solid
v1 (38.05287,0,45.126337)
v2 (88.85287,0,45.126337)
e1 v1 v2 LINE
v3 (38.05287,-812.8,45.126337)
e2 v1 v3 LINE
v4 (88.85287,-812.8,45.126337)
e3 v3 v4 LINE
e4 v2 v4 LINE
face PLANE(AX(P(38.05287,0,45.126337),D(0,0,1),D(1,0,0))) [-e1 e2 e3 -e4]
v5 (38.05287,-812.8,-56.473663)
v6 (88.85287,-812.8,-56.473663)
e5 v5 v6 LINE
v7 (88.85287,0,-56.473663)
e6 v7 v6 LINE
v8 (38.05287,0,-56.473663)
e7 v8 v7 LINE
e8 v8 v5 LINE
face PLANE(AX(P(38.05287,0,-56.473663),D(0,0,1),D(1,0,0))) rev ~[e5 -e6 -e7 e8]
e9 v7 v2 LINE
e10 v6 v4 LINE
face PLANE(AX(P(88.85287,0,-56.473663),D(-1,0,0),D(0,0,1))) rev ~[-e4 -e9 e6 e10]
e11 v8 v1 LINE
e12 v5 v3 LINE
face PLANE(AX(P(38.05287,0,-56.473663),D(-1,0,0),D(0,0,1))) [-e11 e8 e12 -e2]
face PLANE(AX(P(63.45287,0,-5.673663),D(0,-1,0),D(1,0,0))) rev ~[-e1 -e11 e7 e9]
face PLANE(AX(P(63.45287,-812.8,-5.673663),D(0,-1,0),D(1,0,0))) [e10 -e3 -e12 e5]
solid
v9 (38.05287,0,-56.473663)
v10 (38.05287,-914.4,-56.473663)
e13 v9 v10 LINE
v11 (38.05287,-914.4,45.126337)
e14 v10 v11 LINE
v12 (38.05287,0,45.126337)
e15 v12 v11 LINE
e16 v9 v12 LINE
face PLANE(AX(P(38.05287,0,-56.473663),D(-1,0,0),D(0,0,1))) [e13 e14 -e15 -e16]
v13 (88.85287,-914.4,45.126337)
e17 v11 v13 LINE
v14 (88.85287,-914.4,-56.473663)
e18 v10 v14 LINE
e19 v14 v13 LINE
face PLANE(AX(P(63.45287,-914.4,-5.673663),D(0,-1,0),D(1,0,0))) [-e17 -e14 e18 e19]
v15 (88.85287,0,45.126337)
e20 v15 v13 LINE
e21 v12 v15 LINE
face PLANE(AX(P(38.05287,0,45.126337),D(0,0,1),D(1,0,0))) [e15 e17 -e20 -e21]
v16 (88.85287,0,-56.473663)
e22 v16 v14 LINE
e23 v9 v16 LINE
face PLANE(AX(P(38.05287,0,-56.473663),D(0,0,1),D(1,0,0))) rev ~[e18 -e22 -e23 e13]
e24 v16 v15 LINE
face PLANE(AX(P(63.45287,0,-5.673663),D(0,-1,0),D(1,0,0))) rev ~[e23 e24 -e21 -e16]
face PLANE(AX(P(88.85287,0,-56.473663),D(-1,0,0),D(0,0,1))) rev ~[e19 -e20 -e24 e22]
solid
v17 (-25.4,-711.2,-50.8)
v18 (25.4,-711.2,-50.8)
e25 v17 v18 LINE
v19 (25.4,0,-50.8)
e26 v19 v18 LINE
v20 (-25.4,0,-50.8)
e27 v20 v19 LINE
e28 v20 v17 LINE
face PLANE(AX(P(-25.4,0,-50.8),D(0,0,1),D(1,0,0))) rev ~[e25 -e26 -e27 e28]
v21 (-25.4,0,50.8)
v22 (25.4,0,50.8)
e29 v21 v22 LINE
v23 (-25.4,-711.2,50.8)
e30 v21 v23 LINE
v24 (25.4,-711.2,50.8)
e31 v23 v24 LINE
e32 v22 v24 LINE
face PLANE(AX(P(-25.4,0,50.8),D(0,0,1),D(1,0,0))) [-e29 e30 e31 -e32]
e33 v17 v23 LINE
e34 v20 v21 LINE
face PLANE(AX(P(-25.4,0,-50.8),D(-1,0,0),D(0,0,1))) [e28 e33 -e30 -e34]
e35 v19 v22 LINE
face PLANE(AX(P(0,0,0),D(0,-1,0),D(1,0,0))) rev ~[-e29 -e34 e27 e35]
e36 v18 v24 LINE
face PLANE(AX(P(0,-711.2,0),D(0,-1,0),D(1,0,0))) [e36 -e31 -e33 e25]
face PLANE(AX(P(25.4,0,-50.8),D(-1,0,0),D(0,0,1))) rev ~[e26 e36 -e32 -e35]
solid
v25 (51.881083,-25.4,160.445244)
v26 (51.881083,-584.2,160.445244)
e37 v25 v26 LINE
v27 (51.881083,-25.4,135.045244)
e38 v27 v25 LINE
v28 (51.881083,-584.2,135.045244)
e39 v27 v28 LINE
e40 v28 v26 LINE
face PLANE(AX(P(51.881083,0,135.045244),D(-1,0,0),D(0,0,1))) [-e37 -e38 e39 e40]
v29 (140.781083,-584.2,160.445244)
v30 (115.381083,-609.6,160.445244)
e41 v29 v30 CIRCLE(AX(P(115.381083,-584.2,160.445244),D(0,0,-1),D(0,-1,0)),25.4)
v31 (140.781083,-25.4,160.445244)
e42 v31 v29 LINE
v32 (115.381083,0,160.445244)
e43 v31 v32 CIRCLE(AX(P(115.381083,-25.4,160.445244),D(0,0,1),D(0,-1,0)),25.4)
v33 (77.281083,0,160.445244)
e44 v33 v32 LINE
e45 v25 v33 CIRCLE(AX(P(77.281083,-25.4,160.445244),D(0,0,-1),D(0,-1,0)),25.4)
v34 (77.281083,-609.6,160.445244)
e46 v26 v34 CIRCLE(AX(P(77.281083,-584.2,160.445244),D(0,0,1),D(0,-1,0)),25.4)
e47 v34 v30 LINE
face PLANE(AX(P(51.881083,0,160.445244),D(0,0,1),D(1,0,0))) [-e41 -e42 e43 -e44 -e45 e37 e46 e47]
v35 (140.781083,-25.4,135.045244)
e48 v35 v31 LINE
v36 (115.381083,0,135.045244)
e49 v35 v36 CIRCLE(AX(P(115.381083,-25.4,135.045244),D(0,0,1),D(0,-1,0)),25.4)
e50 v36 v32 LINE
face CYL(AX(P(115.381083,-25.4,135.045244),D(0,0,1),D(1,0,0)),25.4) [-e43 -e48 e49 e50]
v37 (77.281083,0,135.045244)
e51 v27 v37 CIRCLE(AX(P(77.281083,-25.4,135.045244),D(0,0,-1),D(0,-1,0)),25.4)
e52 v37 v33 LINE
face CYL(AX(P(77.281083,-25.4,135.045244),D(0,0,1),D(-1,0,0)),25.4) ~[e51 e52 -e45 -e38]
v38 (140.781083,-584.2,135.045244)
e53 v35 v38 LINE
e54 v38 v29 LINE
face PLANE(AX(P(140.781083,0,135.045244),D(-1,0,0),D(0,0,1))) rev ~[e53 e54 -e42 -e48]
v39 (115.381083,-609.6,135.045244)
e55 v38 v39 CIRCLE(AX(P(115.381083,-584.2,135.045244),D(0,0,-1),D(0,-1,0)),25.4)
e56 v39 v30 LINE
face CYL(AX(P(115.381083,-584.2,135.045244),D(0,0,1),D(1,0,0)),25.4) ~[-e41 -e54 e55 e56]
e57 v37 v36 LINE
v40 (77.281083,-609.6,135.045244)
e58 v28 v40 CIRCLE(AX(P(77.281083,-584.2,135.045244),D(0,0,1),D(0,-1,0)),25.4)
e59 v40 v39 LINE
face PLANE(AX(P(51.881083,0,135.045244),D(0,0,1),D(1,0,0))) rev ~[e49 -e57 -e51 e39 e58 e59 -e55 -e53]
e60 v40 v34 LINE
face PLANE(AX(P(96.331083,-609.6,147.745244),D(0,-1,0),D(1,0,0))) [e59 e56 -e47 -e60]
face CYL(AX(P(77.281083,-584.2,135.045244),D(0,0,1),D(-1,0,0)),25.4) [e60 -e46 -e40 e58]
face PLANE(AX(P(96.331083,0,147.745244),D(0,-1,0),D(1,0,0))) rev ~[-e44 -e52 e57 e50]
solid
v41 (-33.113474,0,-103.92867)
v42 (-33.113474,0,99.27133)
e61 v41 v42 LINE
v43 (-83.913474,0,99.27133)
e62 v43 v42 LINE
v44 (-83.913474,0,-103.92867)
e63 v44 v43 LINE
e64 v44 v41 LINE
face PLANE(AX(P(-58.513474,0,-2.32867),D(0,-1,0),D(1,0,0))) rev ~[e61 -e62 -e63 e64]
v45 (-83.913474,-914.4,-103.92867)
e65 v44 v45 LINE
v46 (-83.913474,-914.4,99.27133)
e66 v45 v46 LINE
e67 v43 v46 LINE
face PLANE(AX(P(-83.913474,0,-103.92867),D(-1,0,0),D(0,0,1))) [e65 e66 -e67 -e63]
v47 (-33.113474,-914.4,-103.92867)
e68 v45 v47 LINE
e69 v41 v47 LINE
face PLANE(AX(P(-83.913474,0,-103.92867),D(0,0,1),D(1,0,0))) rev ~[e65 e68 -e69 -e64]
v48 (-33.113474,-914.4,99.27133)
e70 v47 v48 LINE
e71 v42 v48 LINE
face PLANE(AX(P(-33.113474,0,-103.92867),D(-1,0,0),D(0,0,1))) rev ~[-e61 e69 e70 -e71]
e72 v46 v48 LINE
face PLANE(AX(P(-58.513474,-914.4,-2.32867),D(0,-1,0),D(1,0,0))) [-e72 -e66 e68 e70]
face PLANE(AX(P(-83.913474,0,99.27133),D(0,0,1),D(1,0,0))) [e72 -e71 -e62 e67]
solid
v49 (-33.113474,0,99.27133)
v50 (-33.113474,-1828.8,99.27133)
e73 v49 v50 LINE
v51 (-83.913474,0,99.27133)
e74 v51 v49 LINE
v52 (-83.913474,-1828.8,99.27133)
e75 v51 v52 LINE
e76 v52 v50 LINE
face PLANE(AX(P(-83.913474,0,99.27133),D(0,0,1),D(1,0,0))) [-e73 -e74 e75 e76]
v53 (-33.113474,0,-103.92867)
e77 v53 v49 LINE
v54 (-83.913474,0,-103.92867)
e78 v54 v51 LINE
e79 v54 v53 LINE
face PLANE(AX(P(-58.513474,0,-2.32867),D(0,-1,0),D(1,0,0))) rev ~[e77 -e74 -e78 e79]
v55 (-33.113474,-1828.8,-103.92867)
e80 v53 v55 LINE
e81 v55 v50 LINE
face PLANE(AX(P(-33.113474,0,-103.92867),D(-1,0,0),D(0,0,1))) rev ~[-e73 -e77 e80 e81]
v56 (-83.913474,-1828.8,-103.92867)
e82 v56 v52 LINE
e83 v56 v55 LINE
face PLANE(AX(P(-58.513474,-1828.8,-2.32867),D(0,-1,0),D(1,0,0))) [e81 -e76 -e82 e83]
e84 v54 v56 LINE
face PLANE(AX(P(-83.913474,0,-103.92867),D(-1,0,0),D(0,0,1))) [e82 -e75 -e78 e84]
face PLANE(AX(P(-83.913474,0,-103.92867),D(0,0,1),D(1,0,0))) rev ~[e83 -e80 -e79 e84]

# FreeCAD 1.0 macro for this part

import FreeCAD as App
import Part
import Sketcher

V = App.Vector
Q = App.Units.Quantity


def edges_at(feature, points):
    """Names of the edges that pass closest to the given points."""
    edges = feature.Shape.Edges
    near = lambda p: min(range(len(edges)), key=lambda i: edges[i].distToShape(Part.Vertex(*p))[0])
    return sorted({f"Edge{near(p) + 1}" for p in points})


def add_polygon(sketch, points):
    """Adds a closed chain of lines whose ends are joined by coincident constraints."""
    first, n = sketch.GeometryCount, len(points)
    for a, b in zip(points, points[1:] + points[:1]):
        sketch.addGeometry(Part.LineSegment(App.Vector(*a, 0), App.Vector(*b, 0)), False)
    for i in range(n):
        sketch.addConstraint(Sketcher.Constraint("Coincident", first + i, 2, first + (i + 1) % n, 1))

doc = App.newDocument("Part")
body = doc.addObject("PartDesign::Body", "Body")

sketch1 = body.newObject("Sketcher::SketchObject", "Sketch")
sketch1.AttachmentSupport = (doc.getObject("XZ_Plane"), [""])
sketch1.MapMode = "FlatFace"
add_polygon(sketch1, [(-25, 51), (-25, -51), (25, -51), (25, 51)])
sketch1.addConstraint([
    Sketcher.Constraint("Vertical", 0),
    Sketcher.Constraint("Horizontal", 1),
    Sketcher.Constraint("Vertical", 2),
    Sketcher.Constraint("Horizontal", 3),
    Sketcher.Constraint("Symmetric", 0, 2, 2, 2, -1, 1),
    Sketcher.Constraint("DistanceX", 1, 1, 1, 2, Q("2 in")),
    Sketcher.Constraint("DistanceY", 0, 2, 0, 1, Q("4 in")),
])
pad1 = body.newObject("PartDesign::Pad", "Pad")
pad1.Profile = sketch1
pad1.Length = Q("28 in")
body2 = doc.addObject("PartDesign::Body", "Body001")

sketch2 = body2.newObject("Sketcher::SketchObject", "Sketch001")
sketch2.AttachmentSupport = (doc.getObject("XZ_Plane001"), [""])
sketch2.MapMode = "FlatFace"
add_polygon(sketch2, [(38, 45), (38, -56), (89, -56), (89, 45)])
sketch2.addConstraint([
    Sketcher.Constraint("Vertical", 0),
    Sketcher.Constraint("Horizontal", 1),
    Sketcher.Constraint("Vertical", 2),
    Sketcher.Constraint("Horizontal", 3),
    Sketcher.Constraint("DistanceX", 1, 1, 1, 2, Q("2 in")),
    Sketcher.Constraint("DistanceY", 0, 2, 0, 1, Q("4 in")),
    Sketcher.Constraint("DistanceX", -1, 1, 0, 2, Q("38.05287 mm")),
    Sketcher.Constraint("DistanceY", 0, 2, -1, 1, Q("56.473663 mm")),
])
pad2 = body2.newObject("PartDesign::Pad", "Pad001")
pad2.Profile = sketch2
pad2.Length = Q("32 in")
body3 = doc.addObject("PartDesign::Body", "Body002")

sketch3 = body3.newObject("Sketcher::SketchObject", "Sketch002")
sketch3.AttachmentSupport = (doc.getObject("XZ_Plane002"), [""])
sketch3.MapMode = "FlatFace"
add_polygon(sketch3, [(-84, 99), (-84, -104), (-33, -104), (-33, 99)])
sketch3.addConstraint([
    Sketcher.Constraint("Vertical", 0),
    Sketcher.Constraint("Horizontal", 1),
    Sketcher.Constraint("Vertical", 2),
    Sketcher.Constraint("Horizontal", 3),
    Sketcher.Constraint("DistanceX", 1, 1, 1, 2, Q("2 in")),
    Sketcher.Constraint("DistanceY", 0, 2, 0, 1, Q("8 in")),
    Sketcher.Constraint("DistanceY", 0, 2, -1, 1, Q("103.92867 mm")),
    Sketcher.Constraint("DistanceX", 0, 2, -1, 1, Q("83.913474 mm")),
])
pad3 = body3.newObject("PartDesign::Pad", "Pad002")
pad3.Profile = sketch3
pad3.Length = Q("36 in")
body4 = doc.addObject("PartDesign::Body", "Body003")

sketch4 = body4.newObject("Sketcher::SketchObject", "Sketch003")
sketch4.AttachmentSupport = (doc.getObject("XZ_Plane003"), [""])
sketch4.MapMode = "FlatFace"
add_polygon(sketch4, [(-84, 99), (-84, -104), (-33, -104), (-33, 99)])
sketch4.addConstraint([
    Sketcher.Constraint("Vertical", 0),
    Sketcher.Constraint("Horizontal", 1),
    Sketcher.Constraint("Vertical", 2),
    Sketcher.Constraint("Horizontal", 3),
    Sketcher.Constraint("DistanceX", 1, 1, 1, 2, Q("2 in")),
    Sketcher.Constraint("DistanceY", 0, 2, 0, 1, Q("8 in")),
    Sketcher.Constraint("DistanceY", 0, 2, -1, 1, Q("103.92867 mm")),
    Sketcher.Constraint("DistanceX", 0, 2, -1, 1, Q("83.913474 mm")),
])
pad4 = body4.newObject("PartDesign::Pad", "Pad003")
pad4.Profile = sketch4
pad4.Length = Q("72 in")
body5 = doc.addObject("PartDesign::Body", "Body004")

sketch5 = body5.newObject("Sketcher::SketchObject", "Sketch004")
sketch5.AttachmentSupport = (doc.getObject("XZ_Plane004"), [""])
sketch5.MapMode = "FlatFace"
add_polygon(sketch5, [(38, 45), (38, -56), (89, -56), (89, 45)])
sketch5.addConstraint([
    Sketcher.Constraint("Vertical", 0),
    Sketcher.Constraint("Horizontal", 1),
    Sketcher.Constraint("Vertical", 2),
    Sketcher.Constraint("Horizontal", 3),
    Sketcher.Constraint("DistanceX", 1, 1, 1, 2, Q("2 in")),
    Sketcher.Constraint("DistanceY", 0, 2, 0, 1, Q("4 in")),
    Sketcher.Constraint("DistanceX", -1, 1, 0, 2, Q("38.05287 mm")),
    Sketcher.Constraint("DistanceY", 0, 2, -1, 1, Q("56.473663 mm")),
])
pad5 = body5.newObject("PartDesign::Pad", "Pad004")
pad5.Profile = sketch5
pad5.Length = Q("36 in")
body6 = doc.addObject("PartDesign::Body", "Body005")

sketch6 = body6.newObject("Sketcher::SketchObject", "Sketch005")
sketch6.AttachmentSupport = (doc.getObject("XZ_Plane005"), [""])
sketch6.MapMode = "FlatFace"
add_polygon(sketch6, [(52, 160), (52, 135), (141, 135), (141, 160)])
sketch6.addConstraint([
    Sketcher.Constraint("Vertical", 0),
    Sketcher.Constraint("Horizontal", 1),
    Sketcher.Constraint("Vertical", 2),
    Sketcher.Constraint("Horizontal", 3),
    Sketcher.Constraint("DistanceY", 0, 2, 0, 1, Q("1 in")),
    Sketcher.Constraint("DistanceX", 1, 1, 1, 2, Q("3.5 in")),
    Sketcher.Constraint("DistanceX", -1, 1, 0, 2, Q("51.881083 mm")),
    Sketcher.Constraint("DistanceY", -1, 1, 0, 2, Q("135.045244 mm")),
])
pad6 = body6.newObject("PartDesign::Pad", "Pad005")
pad6.Profile = sketch6
pad6.Length = Q("24 in")
doc.recompute()

fillet = body6.newObject("PartDesign::Fillet", "Fillet")
fillet.Base = (pad6, edges_at(pad6, [
    (140.781, 0, 147.745),
    (51.881, 0, 147.745),
    (51.881, -609.6, 147.745),
    (140.781, -609.6, 147.745),
]))
fillet.Radius = Q("1 in")

doc.recompute()
